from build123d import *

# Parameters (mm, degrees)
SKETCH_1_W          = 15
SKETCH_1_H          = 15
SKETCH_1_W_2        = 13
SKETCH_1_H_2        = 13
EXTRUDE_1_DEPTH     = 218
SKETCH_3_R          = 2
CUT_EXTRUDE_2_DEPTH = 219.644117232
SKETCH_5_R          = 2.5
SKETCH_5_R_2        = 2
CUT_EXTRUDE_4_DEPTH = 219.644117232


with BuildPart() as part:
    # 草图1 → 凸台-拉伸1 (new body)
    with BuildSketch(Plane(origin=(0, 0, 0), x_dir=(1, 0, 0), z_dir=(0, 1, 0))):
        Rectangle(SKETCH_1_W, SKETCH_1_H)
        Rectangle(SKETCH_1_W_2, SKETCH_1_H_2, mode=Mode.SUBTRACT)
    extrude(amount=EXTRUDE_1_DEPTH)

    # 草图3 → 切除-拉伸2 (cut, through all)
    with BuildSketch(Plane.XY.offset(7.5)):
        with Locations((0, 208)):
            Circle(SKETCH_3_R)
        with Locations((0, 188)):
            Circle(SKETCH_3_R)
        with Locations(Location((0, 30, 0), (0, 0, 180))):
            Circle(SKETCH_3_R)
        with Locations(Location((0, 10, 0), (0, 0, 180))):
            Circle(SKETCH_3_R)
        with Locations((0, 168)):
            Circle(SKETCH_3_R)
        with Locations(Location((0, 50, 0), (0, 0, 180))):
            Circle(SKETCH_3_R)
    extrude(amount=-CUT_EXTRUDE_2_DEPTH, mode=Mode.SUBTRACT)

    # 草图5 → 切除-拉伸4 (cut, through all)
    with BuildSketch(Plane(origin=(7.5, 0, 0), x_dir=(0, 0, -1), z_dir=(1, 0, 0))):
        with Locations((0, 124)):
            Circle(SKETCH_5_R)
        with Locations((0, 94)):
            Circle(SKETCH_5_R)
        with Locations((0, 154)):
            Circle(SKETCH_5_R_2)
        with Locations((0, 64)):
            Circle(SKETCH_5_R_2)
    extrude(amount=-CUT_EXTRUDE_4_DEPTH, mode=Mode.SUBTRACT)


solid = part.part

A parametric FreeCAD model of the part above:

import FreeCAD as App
import Part
import Sketcher

doc = App.newDocument("Part")
body = doc.addObject("PartDesign::Body", "Body")

# Sketch on XZ plane
sketch1 = body.newObject("Sketcher::SketchObject", "Sketch")
sketch1.AttachmentSupport = (doc.getObject("XZ_Plane"), [""])
sketch1.MapMode = "FlatFace"
sketch1.addGeometry([
    Part.LineSegment(App.Vector(-8, -8, 0), App.Vector(-8, 8, 0)),  # 0
    Part.LineSegment(App.Vector(-8, 8, 0), App.Vector(8, 8, 0)),  # 1
    Part.LineSegment(App.Vector(8, 8, 0), App.Vector(8, -8, 0)),  # 2
    Part.LineSegment(App.Vector(8, -8, 0), App.Vector(-8, -8, 0)),  # 3
    Part.LineSegment(App.Vector(6, 6, 0), App.Vector(-6, 6, 0)),  # 4
    Part.LineSegment(App.Vector(-6, 6, 0), App.Vector(-6, -6, 0)),  # 5
    Part.LineSegment(App.Vector(-6, -6, 0), App.Vector(6, -6, 0)),  # 6
    Part.LineSegment(App.Vector(6, -6, 0), App.Vector(6, 6, 0)),  # 7
], False)
sketch1.addConstraint([
    Sketcher.Constraint("Coincident", 0, 2, 1, 1),
    Sketcher.Constraint("Coincident", 1, 2, 2, 1),
    Sketcher.Constraint("Coincident", 2, 2, 3, 1),
    Sketcher.Constraint("Coincident", 3, 2, 0, 1),
    Sketcher.Constraint("Coincident", 4, 2, 5, 1),
    Sketcher.Constraint("Coincident", 5, 2, 6, 1),
    Sketcher.Constraint("Coincident", 6, 2, 7, 1),
    Sketcher.Constraint("Coincident", 7, 2, 4, 1),
    Sketcher.Constraint("Vertical", 0),
    Sketcher.Constraint("Horizontal", 1),
    Sketcher.Constraint("Vertical", 2),
    Sketcher.Constraint("Horizontal", 3),
    Sketcher.Constraint("Horizontal", 4),
    Sketcher.Constraint("Vertical", 5),
    Sketcher.Constraint("Horizontal", 6),
    Sketcher.Constraint("Vertical", 7),
    Sketcher.Constraint("Symmetric", 0, 2, 2, 2, -1, 1),
    Sketcher.Constraint("Symmetric", 4, 2, 6, 2, -1, 1),
    Sketcher.Constraint("Equal", 3, 0),
    Sketcher.Constraint("Equal", 6, 5),
    Sketcher.Constraint("DistanceX", 1, 1, 1, 2, 15.0),
    Sketcher.Constraint("DistanceX", 4, 2, 4, 1, 13.0),
])
pad1 = body.newObject("PartDesign::Pad", "Pad")
pad1.Profile = sketch1
pad1.Length = 218
pad1.Reversed = True

# Sketch on XY plane
sketch2 = body.newObject("Sketcher::SketchObject", "Sketch001")
sketch2.AttachmentSupport = (doc.getObject("XY_Plane"), [""])
sketch2.MapMode = "FlatFace"
sketch2.AttachmentOffset = App.Placement(App.Vector(0, 0, 7.5), App.Rotation())
sketch2.addGeometry([
    Part.Circle(App.Vector(0, 208, 0), App.Vector(0, 0, 1), 2),  # 0
    Part.Circle(App.Vector(0, 188, 0), App.Vector(0, 0, 1), 2),  # 1
    Part.Circle(App.Vector(0, 30, 0), App.Vector(0, 0, 1), 2),  # 2
    Part.Circle(App.Vector(0, 10, 0), App.Vector(0, 0, 1), 2),  # 3
    Part.Circle(App.Vector(0, 168, 0), App.Vector(0, 0, 1), 2),  # 4
    Part.Circle(App.Vector(0, 50, 0), App.Vector(0, 0, 1), 2),  # 5
], False)
sketch2.addConstraint([
    Sketcher.Constraint("Equal", 0, 1),
    Sketcher.Constraint("Equal", 1, 2),
    Sketcher.Constraint("Equal", 2, 3),
    Sketcher.Constraint("Equal", 3, 4),
    Sketcher.Constraint("Equal", 4, 5),
    Sketcher.Constraint("PointOnObject", 0, 3, -2),
    Sketcher.Constraint("PointOnObject", 1, 3, -2),
    Sketcher.Constraint("PointOnObject", 2, 3, -2),
    Sketcher.Constraint("PointOnObject", 3, 3, -2),
    Sketcher.Constraint("PointOnObject", 4, 3, -2),
    Sketcher.Constraint("PointOnObject", 5, 3, -2),
    Sketcher.Constraint("Diameter", 0, 4.0),
    Sketcher.Constraint("DistanceY", -1, 1, 0, 3, 208.0),
    Sketcher.Constraint("DistanceY", -1, 1, 1, 3, 188.0),
    Sketcher.Constraint("DistanceY", -1, 1, 2, 3, 30.0),
    Sketcher.Constraint("DistanceY", -1, 1, 3, 3, 10.0),
    Sketcher.Constraint("DistanceY", -1, 1, 4, 3, 168.0),
    Sketcher.Constraint("DistanceY", -1, 1, 5, 3, 50.0),
])
pocket1 = body.newObject("PartDesign::Pocket", "Pocket")
pocket1.Profile = sketch2
pocket1.Type = "ThroughAll"

# Sketch on YZ plane
sketch3 = body.newObject("Sketcher::SketchObject", "Sketch002")
sketch3.AttachmentSupport = (doc.getObject("YZ_Plane"), [""])
sketch3.MapMode = "FlatFace"
sketch3.AttachmentOffset = App.Placement(App.Vector(0, 0, 7.5), App.Rotation())
sketch3.addGeometry([
    Part.Circle(App.Vector(124, 0, 0), App.Vector(0, 0, 1), 2.5),
    Part.Circle(App.Vector(94, 0, 0), App.Vector(0, 0, 1), 2.5),
    Part.Circle(App.Vector(154, 0, 0), App.Vector(0, 0, 1), 2),
    Part.Circle(App.Vector(64, 0, 0), App.Vector(0, 0, 1), 2),
], False)
sketch3.addConstraint([
    Sketcher.Constraint("Equal", 0, 1),
    Sketcher.Constraint("Equal", 2, 3),
    Sketcher.Constraint("PointOnObject", 0, 3, -1),
    Sketcher.Constraint("PointOnObject", 1, 3, -1),
    Sketcher.Constraint("PointOnObject", 2, 3, -1),
    Sketcher.Constraint("PointOnObject", 3, 3, -1),
    Sketcher.Constraint("Diameter", 0, 5.0),
    Sketcher.Constraint("Diameter", 2, 4.0),
    Sketcher.Constraint("DistanceX", -1, 1, 0, 3, 124.0),
    Sketcher.Constraint("DistanceX", -1, 1, 1, 3, 94.0),
    Sketcher.Constraint("DistanceX", -1, 1, 2, 3, 154.0),
    Sketcher.Constraint("DistanceX", -1, 1, 3, 3, 64.0),
])
pocket2 = body.newObject("PartDesign::Pocket", "Pocket001")
pocket2.Profile = sketch3
pocket2.Type = "ThroughAll"

doc.recompute()
